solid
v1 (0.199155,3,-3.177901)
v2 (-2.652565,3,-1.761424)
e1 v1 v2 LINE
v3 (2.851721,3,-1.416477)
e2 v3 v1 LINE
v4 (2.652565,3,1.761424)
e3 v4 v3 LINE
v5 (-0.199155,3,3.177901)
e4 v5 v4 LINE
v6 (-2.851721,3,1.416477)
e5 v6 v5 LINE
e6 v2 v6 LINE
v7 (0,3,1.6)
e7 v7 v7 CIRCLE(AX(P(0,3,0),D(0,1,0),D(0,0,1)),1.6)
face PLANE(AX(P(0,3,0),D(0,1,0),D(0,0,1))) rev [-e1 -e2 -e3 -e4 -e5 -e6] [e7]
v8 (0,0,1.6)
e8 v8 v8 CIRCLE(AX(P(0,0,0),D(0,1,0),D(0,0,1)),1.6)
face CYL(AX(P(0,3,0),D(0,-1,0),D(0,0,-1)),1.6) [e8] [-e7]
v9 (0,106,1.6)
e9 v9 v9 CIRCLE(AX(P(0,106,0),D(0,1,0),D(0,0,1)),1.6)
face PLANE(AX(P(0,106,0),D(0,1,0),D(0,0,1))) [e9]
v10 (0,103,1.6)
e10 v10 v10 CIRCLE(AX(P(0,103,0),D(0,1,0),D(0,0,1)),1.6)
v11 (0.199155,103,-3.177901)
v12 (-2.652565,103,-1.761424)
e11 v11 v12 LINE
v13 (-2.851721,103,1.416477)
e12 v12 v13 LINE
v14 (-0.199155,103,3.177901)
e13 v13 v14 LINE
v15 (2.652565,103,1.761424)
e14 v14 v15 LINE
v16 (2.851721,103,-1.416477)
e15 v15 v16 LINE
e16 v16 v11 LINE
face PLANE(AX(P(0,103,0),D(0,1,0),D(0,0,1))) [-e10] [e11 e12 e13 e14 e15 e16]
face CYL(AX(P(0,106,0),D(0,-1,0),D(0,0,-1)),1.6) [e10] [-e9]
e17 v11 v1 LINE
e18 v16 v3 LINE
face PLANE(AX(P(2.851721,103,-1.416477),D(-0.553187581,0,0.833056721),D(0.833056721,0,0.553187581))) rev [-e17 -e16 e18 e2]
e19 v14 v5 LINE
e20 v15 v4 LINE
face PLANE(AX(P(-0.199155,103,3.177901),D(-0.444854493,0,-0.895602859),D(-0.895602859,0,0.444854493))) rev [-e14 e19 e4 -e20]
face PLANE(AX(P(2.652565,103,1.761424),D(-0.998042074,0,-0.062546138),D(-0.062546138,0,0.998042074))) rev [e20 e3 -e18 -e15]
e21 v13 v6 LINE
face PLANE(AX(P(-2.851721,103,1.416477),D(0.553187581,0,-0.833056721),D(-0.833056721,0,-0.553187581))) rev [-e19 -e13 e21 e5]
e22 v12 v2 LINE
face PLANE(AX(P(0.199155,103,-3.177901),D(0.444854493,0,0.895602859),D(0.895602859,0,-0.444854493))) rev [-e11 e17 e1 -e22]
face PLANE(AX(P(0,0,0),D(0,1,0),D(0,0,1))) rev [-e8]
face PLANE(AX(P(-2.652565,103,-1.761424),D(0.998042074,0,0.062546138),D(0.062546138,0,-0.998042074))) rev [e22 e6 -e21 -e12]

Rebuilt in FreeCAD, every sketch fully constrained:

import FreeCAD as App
import Part
import Sketcher


def add_polygon(sketch, points):
    """Adds a closed chain of lines whose ends are joined by coincident constraints."""
    first, n = sketch.GeometryCount, len(points)
    for a, b in zip(points, points[1:] + points[:1]):
        sketch.addGeometry(Part.LineSegment(App.Vector(*a, 0), App.Vector(*b, 0)), False)
    for i in range(n):
        sketch.addConstraint(Sketcher.Constraint("Coincident", first + i, 2, first + (i + 1) % n, 1))

doc = App.newDocument("Part")
body = doc.addObject("PartDesign::Body", "Body")

sketch1 = body.newObject("Sketcher::SketchObject", "Sketch")
sketch1.AttachmentSupport = (doc.getObject("XZ_Plane"), [""])
sketch1.MapMode = "FlatFace"
sketch1.addGeometry(Part.Circle(App.Vector(0, 0, 0), App.Vector(0, 0, 1), 1.6), False)
sketch1.addConstraint([
    Sketcher.Constraint("Coincident", 0, 3, -1, 1),
    Sketcher.Constraint("Diameter", 0, 3.2),
])
pad1 = body.newObject("PartDesign::Pad", "Pad")
pad1.Profile = sketch1
pad1.Length = 3
pad1.Reversed = True

sketch2 = body.newObject("Sketcher::SketchObject", "Sketch001")
sketch2.AttachmentSupport = (doc.getObject("XZ_Plane"), [""])
sketch2.MapMode = "FlatFace"
sketch2.AttachmentOffset = App.Placement(App.Vector(0, 0, -3), App.Rotation())
add_polygon(sketch2, [(2.7, 1.8), (2.9, -1.4), (0.2, -3.2), (-2.7, -1.8), (-2.9, 1.4), (-0.2, 3.2)])
sketch2.addConstraint([
    Sketcher.Constraint("Symmetric", 0, 2, 3, 2, -1, 1),
    Sketcher.Constraint("Symmetric", 1, 2, 4, 2, -1, 1),
    Sketcher.Constraint("Symmetric", 2, 2, 5, 2, -1, 1),
    Sketcher.Constraint("Equal", 0, 1),
    Sketcher.Constraint("Equal", 1, 2),
    Sketcher.Constraint("DistanceY", 1, 2, -1, 1, 3.177901),
    Sketcher.Constraint("DistanceY", 2, 2, 3, 2, 3.177901),
    Sketcher.Constraint("DistanceX", -1, 1, 0, 2, 2.851721),
    Sketcher.Constraint("DistanceX", 2, 2, 1, 2, 2.851721),
])
pad2 = body.newObject("PartDesign::Pad", "Pad001")
pad2.Profile = sketch2
pad2.Length = 100
pad2.Reversed = True

sketch3 = body.newObject("Sketcher::SketchObject", "Sketch002")
sketch3.AttachmentSupport = (doc.getObject("XZ_Plane"), [""])
sketch3.MapMode = "FlatFace"
sketch3.AttachmentOffset = App.Placement(App.Vector(0, 0, -103), App.Rotation())
sketch3.addGeometry(Part.Circle(App.Vector(0, 0, 0), App.Vector(0, 0, 1), 1.6), False)
sketch3.addConstraint([
    Sketcher.Constraint("Coincident", 0, 3, -1, 1),
    Sketcher.Constraint("Diameter", 0, 3.2),
])
pad3 = body.newObject("PartDesign::Pad", "Pad002")
pad3.Profile = sketch3
pad3.Length = 3
pad3.Reversed = True

doc.recompute()
